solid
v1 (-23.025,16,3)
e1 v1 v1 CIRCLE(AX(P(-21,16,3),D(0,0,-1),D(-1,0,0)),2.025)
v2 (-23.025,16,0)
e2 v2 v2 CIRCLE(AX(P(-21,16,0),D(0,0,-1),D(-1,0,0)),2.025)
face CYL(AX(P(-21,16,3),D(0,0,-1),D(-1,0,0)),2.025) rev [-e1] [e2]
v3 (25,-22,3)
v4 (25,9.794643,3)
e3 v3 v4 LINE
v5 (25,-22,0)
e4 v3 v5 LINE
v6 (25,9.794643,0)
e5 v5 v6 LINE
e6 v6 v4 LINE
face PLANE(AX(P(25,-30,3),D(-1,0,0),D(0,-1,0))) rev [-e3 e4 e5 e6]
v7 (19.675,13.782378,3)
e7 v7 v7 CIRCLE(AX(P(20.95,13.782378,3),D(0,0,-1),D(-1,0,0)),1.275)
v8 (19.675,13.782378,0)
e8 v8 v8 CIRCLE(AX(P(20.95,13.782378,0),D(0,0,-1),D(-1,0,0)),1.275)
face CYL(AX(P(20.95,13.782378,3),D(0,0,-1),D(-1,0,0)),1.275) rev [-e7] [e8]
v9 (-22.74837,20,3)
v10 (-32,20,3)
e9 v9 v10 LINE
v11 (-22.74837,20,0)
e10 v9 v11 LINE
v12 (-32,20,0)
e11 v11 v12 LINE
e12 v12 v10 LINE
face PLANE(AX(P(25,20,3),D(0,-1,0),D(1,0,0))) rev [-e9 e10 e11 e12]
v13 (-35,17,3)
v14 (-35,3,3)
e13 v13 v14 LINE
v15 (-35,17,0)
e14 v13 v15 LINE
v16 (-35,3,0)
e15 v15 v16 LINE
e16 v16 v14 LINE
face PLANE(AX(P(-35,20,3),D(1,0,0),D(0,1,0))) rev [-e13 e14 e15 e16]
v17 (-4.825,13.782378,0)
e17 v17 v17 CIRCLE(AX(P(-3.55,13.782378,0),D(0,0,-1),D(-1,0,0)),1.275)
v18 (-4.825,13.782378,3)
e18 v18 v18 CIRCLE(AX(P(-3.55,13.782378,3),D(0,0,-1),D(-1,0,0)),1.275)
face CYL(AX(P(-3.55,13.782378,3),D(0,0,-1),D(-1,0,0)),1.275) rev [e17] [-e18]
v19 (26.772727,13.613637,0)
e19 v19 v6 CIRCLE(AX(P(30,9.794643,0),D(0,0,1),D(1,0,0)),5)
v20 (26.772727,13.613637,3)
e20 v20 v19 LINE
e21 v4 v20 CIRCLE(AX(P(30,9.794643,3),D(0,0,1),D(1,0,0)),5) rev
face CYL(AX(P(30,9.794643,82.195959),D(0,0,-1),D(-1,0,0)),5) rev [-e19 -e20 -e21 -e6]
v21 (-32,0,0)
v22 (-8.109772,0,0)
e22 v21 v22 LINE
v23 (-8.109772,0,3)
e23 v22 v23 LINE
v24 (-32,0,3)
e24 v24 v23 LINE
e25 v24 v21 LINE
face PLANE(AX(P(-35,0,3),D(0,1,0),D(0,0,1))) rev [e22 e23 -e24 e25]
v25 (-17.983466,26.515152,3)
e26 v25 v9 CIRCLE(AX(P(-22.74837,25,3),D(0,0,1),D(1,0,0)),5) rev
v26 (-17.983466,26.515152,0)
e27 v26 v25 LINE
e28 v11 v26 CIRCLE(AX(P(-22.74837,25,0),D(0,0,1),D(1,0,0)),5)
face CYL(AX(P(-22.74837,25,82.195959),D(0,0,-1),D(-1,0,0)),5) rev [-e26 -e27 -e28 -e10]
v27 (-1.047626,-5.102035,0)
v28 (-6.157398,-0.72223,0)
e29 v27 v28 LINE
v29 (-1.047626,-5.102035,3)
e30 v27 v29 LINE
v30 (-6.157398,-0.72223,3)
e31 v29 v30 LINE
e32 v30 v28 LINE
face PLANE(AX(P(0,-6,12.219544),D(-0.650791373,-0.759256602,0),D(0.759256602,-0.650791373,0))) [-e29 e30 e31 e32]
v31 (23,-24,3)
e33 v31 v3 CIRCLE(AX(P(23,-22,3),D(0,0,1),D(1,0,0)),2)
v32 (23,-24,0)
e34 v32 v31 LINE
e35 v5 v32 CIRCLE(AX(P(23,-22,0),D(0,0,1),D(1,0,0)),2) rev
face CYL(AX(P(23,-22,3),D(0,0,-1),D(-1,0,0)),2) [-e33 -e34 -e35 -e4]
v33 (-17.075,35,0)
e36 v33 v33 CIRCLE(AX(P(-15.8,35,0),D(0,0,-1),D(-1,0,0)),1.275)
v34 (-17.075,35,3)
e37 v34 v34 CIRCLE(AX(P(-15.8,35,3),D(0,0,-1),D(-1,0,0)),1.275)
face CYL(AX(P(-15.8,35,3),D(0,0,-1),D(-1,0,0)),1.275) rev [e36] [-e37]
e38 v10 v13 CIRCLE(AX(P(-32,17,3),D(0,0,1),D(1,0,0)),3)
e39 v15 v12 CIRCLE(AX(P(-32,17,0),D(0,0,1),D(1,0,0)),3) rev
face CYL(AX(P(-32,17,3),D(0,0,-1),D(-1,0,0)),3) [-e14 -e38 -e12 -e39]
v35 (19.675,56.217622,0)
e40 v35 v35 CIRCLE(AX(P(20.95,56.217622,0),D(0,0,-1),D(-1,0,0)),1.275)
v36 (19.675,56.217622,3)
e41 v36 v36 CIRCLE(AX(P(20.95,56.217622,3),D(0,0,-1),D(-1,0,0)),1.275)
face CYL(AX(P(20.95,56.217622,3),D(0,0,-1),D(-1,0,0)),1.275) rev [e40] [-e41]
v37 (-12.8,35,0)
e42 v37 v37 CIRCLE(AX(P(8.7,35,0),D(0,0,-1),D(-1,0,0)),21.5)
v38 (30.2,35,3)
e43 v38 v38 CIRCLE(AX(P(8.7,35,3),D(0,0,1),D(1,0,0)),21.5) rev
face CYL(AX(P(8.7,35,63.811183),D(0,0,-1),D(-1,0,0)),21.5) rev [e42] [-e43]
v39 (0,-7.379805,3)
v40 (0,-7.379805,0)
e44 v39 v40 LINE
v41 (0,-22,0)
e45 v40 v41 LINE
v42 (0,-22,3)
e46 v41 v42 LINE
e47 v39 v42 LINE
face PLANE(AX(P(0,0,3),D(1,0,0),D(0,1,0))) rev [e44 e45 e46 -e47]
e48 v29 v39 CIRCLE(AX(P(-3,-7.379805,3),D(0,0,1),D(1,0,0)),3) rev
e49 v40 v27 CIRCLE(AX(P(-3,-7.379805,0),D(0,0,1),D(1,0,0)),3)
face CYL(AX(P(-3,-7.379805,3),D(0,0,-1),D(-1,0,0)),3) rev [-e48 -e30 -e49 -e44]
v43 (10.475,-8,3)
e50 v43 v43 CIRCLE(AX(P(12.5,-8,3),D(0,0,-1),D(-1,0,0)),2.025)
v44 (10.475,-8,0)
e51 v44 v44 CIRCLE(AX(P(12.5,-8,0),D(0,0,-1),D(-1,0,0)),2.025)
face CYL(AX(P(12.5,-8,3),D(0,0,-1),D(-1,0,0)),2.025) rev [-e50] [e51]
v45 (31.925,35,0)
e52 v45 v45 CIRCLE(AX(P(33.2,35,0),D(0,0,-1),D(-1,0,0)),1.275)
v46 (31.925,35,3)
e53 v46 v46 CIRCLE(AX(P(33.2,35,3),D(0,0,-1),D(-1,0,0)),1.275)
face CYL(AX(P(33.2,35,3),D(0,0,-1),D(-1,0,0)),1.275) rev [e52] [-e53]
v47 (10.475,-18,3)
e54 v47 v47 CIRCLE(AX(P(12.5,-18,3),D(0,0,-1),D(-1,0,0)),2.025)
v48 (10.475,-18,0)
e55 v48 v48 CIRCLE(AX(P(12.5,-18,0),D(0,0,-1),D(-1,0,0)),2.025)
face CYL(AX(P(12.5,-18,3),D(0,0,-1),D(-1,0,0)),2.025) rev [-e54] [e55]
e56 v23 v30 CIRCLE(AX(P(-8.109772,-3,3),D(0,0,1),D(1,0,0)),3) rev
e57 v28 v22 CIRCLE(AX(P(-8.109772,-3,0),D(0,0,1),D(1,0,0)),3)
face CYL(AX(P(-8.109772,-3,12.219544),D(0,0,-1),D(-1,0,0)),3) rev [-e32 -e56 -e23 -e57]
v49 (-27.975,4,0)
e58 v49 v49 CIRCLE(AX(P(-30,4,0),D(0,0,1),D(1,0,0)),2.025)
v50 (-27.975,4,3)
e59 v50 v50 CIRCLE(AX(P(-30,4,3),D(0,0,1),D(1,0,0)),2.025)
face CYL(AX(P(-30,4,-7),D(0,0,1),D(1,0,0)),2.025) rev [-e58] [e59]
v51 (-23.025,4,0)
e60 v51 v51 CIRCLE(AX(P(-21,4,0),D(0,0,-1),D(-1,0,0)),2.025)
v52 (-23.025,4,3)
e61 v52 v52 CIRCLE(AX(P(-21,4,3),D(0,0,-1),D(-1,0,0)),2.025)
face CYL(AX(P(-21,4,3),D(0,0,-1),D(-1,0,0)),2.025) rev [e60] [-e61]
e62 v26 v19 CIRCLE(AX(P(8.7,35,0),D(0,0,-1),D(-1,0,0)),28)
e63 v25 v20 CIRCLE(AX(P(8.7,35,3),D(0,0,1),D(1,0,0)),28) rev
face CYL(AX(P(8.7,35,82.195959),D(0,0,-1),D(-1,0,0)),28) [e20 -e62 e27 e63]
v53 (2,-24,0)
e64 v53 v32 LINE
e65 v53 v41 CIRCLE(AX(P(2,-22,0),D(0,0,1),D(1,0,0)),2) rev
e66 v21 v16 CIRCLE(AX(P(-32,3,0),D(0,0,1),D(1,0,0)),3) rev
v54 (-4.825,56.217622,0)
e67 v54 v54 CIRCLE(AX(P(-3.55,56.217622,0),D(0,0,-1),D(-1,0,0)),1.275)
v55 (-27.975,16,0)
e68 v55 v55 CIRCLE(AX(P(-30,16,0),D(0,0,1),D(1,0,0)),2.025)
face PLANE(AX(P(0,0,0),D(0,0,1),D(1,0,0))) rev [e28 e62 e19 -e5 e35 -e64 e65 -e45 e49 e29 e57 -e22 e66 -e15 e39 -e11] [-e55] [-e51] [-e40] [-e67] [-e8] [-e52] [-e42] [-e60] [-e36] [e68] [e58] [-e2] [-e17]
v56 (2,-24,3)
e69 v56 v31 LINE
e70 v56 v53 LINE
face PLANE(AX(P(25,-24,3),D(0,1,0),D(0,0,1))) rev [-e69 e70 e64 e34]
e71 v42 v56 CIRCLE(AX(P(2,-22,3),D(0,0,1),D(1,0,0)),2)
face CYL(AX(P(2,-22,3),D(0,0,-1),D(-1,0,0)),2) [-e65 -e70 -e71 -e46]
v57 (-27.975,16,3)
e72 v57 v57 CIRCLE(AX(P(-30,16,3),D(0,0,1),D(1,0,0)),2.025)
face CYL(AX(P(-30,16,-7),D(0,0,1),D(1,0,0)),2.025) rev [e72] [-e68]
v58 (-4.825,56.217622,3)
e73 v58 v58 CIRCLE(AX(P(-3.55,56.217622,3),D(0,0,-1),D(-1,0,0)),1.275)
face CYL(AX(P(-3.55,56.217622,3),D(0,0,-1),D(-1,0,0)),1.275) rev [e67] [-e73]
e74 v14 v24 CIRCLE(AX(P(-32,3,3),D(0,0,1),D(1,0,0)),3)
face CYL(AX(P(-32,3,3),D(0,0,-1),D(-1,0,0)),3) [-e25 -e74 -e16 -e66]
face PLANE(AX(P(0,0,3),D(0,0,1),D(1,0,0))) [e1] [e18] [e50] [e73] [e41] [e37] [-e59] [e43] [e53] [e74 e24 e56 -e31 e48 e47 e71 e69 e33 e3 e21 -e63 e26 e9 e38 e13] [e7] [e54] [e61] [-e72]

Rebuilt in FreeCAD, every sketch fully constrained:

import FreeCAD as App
import Part
import Sketcher
from FreeCAD import Vector
Q = App.Units.Quantity


def edges_at(feature, points):
    """Names of the edges that pass closest to the given points."""
    edges = feature.Shape.Edges
    near = lambda p: min(range(len(edges)), key=lambda i: edges[i].distToShape(Part.Vertex(*p))[0])
    return sorted({f"Edge{near(p) + 1}" for p in points})


def add_polygon(sketch, points):
    """Adds a closed chain of lines whose ends are joined by coincident constraints."""
    first, n = sketch.GeometryCount, len(points)
    for a, b in zip(points, points[1:] + points[:1]):
        sketch.addGeometry(Part.LineSegment(App.Vector(*a, 0), App.Vector(*b, 0)), False)
    for i in range(n):
        sketch.addConstraint(Sketcher.Constraint("Coincident", first + i, 2, first + (i + 1) % n, 1))

doc = App.newDocument("Part")
body = doc.addObject("PartDesign::Body", "Body")

sketch1 = body.newObject("Sketcher::SketchObject", "Sketch")
sketch1.AttachmentSupport = (doc.getObject("XY_Plane"), [""])
sketch1.MapMode = "FlatFace"
add_polygon(sketch1, [(-35, 0), (0, 0), (0, -30), (25, -30), (25, 20), (-35, 20)])
sketch1.addConstraint([
    Sketcher.Constraint("Horizontal", 0),
    Sketcher.Constraint("Vertical", 1),
    Sketcher.Constraint("Horizontal", 2),
    Sketcher.Constraint("Vertical", 3),
    Sketcher.Constraint("Horizontal", 4),
    Sketcher.Constraint("Vertical", 5),
    Sketcher.Constraint("Coincident", 0, 2, -1, 1),
    Sketcher.Constraint("DistanceX", 0, 1, 0, 2, Q("35 mm")),
    Sketcher.Constraint("DistanceX", 2, 1, 2, 2, Q("25 mm")),
    Sketcher.Constraint("DistanceY", 1, 2, 1, 1, Q("30 mm")),
    Sketcher.Constraint("DistanceY", 3, 1, 3, 2, Q("50 mm")),
])
pad1 = body.newObject("PartDesign::Pad", "Pad")
pad1.Profile = sketch1
pad1.Length = 3

sketch2 = body.newObject("Sketcher::SketchObject", "Sketch001")
sketch2.AttachmentSupport = (doc.getObject("XY_Plane"), [""])
sketch2.MapMode = "FlatFace"
sketch2.addGeometry(Part.Circle(Vector(8.7, 35, 0), Vector(0, 0, 1), 28), False)
sketch2.addConstraint([
    Sketcher.Constraint("Diameter", 0, Q("56 mm")),
    Sketcher.Constraint("DistanceY", -1, 1, 0, 3, Q("35 mm")),
    Sketcher.Constraint("DistanceX", -1, 1, 0, 3, Q("8.7 mm")),
])
pad2 = body.newObject("PartDesign::Pad", "Pad001")
pad2.Profile = sketch2
pad2.Length = 3

sketch3 = body.newObject("Sketcher::SketchObject", "Sketch002")
sketch3.AttachmentSupport = (doc.getObject("XY_Plane"), [""])
sketch3.MapMode = "FlatFace"
sketch3.addGeometry(Part.Circle(Vector(8.7, 35, 0), Vector(0, 0, 1), 21.5), False)
sketch3.addConstraint([
    Sketcher.Constraint("Diameter", 0, Q("43 mm")),
    Sketcher.Constraint("DistanceY", -1, 1, 0, 3, Q("35 mm")),
    Sketcher.Constraint("DistanceX", -1, 1, 0, 3, Q("8.7 mm")),
])
pocket1 = body.newObject("PartDesign::Pocket", "Pocket")
pocket1.Profile = sketch3
pocket1.Length = 3
pocket1.Reversed = True
doc.recompute()

fillet = body.newObject("PartDesign::Fillet", "Fillet")
fillet.Base = (pocket1, edges_at(pocket1, [(25, 12.234, 1.5), (-14.943, 20, 1.5)]))
fillet.Radius = 5

sketch4 = body.newObject("Sketcher::SketchObject", "Sketch003")
sketch4.AttachmentSupport = (doc.getObject("XY_Plane"), [""])
sketch4.MapMode = "FlatFace"
sketch4.addGeometry([
    Part.Circle(Vector(33.2, 35, 0), Vector(0, 0, 1), 1.275),
    Part.Circle(Vector(20.95, 56.217622, 0), Vector(0, 0, 1), 1.275),
    Part.Circle(Vector(-3.55, 56.217622, 0), Vector(0, 0, 1), 1.275),
    Part.Circle(Vector(-15.8, 35, 0), Vector(0, 0, 1), 1.275),
    Part.Circle(Vector(-3.55, 13.782378, 0), Vector(0, 0, 1), 1.275),
    Part.Circle(Vector(20.95, 13.782378, 0), Vector(0, 0, 1), 1.275),
], False)
sketch4.addConstraint([
    Sketcher.Constraint("Equal", 0, 1),
    Sketcher.Constraint("Equal", 1, 2),
    Sketcher.Constraint("Equal", 2, 3),
    Sketcher.Constraint("Equal", 3, 4),
    Sketcher.Constraint("Equal", 4, 5),
    Sketcher.Constraint("Horizontal", 1, 3, 2, 3),
    Sketcher.Constraint("Horizontal", 0, 3, 3, 3),
    Sketcher.Constraint("Horizontal", 4, 3, 5, 3),
    Sketcher.Constraint("Vertical", 2, 3, 4, 3),
    Sketcher.Constraint("Vertical", 1, 3, 5, 3),
    Sketcher.Constraint("Diameter", 0, Q("2.55 mm")),
    Sketcher.Constraint("DistanceY", -1, 1, 0, 3, Q("35 mm")),
    Sketcher.Constraint("DistanceX", 3, 3, 0, 3, Q("49 mm")),
    Sketcher.Constraint("DistanceX", -1, 1, 0, 3, Q("33.2 mm")),
    Sketcher.Constraint("DistanceX", 2, 3, 1, 3, Q("24.5 mm")),
    Sketcher.Constraint("DistanceX", -1, 1, 1, 3, Q("20.95 mm")),
    Sketcher.Constraint("DistanceY", -1, 1, 1, 3, Q("56.217622 mm")),
    Sketcher.Constraint("DistanceY", -1, 1, 4, 3, Q("13.782378 mm")),
])
pocket2 = body.newObject("PartDesign::Pocket", "Pocket001")
pocket2.Profile = sketch4
pocket2.Type = "ThroughAll"
pocket2.Reversed = True

sketch5 = body.newObject("Sketcher::SketchObject", "Sketch004")
sketch5.AttachmentSupport = (doc.getObject("XY_Plane"), [""])
sketch5.MapMode = "FlatFace"
sketch5.addGeometry([
    Part.Circle(Vector(12.5, -8, 0), Vector(0, 0, 1), 2.025),
    Part.Circle(Vector(12.5, -18, 0), Vector(0, 0, 1), 2.025),
], False)
sketch5.addConstraint([
    Sketcher.Constraint("Equal", 0, 1),
    Sketcher.Constraint("Vertical", 0, 3, 1, 3),
    Sketcher.Constraint("Diameter", 0, Q("4.05 mm")),
    Sketcher.Constraint("DistanceY", 0, 3, -1, 1, Q("8 mm")),
    Sketcher.Constraint("DistanceY", 1, 3, -1, 1, Q("18 mm")),
    Sketcher.Constraint("DistanceX", -1, 1, 0, 3, Q("12.5 mm")),
])
pocket3 = body.newObject("PartDesign::Pocket", "Pocket002")
pocket3.Profile = sketch5
pocket3.Type = "ThroughAll"
pocket3.Reversed = True

sketch6 = body.newObject("Sketcher::SketchObject", "Sketch005")
sketch6.AttachmentSupport = (doc.getObject("XY_Plane"), [""])
sketch6.MapMode = "FlatFace"
add_polygon(sketch6, [(25, -24), (25, -30), (0, -30), (0, -24)])
sketch6.addConstraint([
    Sketcher.Constraint("Vertical", 0),
    Sketcher.Constraint("Horizontal", 1),
    Sketcher.Constraint("Vertical", 2),
    Sketcher.Constraint("Horizontal", 3),
    Sketcher.Constraint("PointOnObject", 1, 2, -2),
    Sketcher.Constraint("DistanceX", 1, 2, 1, 1, Q("25 mm")),
    Sketcher.Constraint("DistanceY", 0, 2, 0, 1, Q("6 mm")),
    Sketcher.Constraint("DistanceY", 0, 2, -1, 1, Q("30 mm")),
])
pocket4 = body.newObject("PartDesign::Pocket", "Pocket003")
pocket4.Profile = sketch6
pocket4.Type = "ThroughAll"
pocket4.Reversed = True
doc.recompute()

fillet2 = body.newObject("PartDesign::Fillet", "Fillet001")
fillet2.Base = (pocket4, edges_at(pocket4, [(25, -24, 1.5), (0, -24, 1.5)]))
fillet2.Radius = 2

sketch7 = body.newObject("Sketcher::SketchObject", "Sketch006")
sketch7.AttachmentSupport = (doc.getObject("XY_Plane"), [""])
sketch7.MapMode = "FlatFace"
sketch7.AttachmentOffset = App.Placement(Vector(0, 0, 3), App.Rotation())
sketch7.addGeometry([
    Part.Circle(Vector(-30, 16, 0), Vector(0, 0, 1), 2.025),
    Part.Circle(Vector(-30, 4, 0), Vector(0, 0, 1), 2.025),
], False)
sketch7.addConstraint([
    Sketcher.Constraint("Equal", 0, 1),
    Sketcher.Constraint("Vertical", 0, 3, 1, 3),
    Sketcher.Constraint("Diameter", 0, Q("4.05 mm")),
    Sketcher.Constraint("DistanceX", 0, 3, -1, 1, Q("30 mm")),
    Sketcher.Constraint("DistanceY", -1, 1, 0, 3, Q("16 mm")),
    Sketcher.Constraint("DistanceY", -1, 1, 1, 3, Q("4 mm")),
])
pocket5 = body.newObject("PartDesign::Pocket", "Pocket004")
pocket5.Profile = sketch7
pocket5.Length = 10

sketch8 = body.newObject("Sketcher::SketchObject", "Sketch007")
sketch8.AttachmentSupport = (doc.getObject("XY_Plane"), [""])
sketch8.MapMode = "FlatFace"
sketch8.addGeometry([
    Part.Circle(Vector(-21, 4, 0), Vector(0, 0, 1), 2.025),
    Part.Circle(Vector(-21, 16, 0), Vector(0, 0, 1), 2.025),
], False)
sketch8.addConstraint([
    Sketcher.Constraint("Equal", 0, 1),
    Sketcher.Constraint("Vertical", 0, 3, 1, 3),
    Sketcher.Constraint("Diameter", 0, Q("4.05 mm")),
    Sketcher.Constraint("DistanceX", 0, 3, -1, 1, Q("21 mm")),
    Sketcher.Constraint("DistanceY", -1, 1, 0, 3, Q("4 mm")),
    Sketcher.Constraint("DistanceY", -1, 1, 1, 3, Q("16 mm")),
])
pocket6 = body.newObject("PartDesign::Pocket", "Pocket005")
pocket6.Profile = sketch8
pocket6.Type = "ThroughAll"
pocket6.Midplane = True

sketch9 = body.newObject("Sketcher::SketchObject", "Sketch008")
sketch9.AttachmentSupport = (doc.getObject("XY_Plane"), [""])
sketch9.MapMode = "FlatFace"
add_polygon(sketch9, [(0, -6), (-7, 0), (0, 0)])
sketch9.addConstraint([
    Sketcher.Constraint("Horizontal", 1),
    Sketcher.Constraint("Vertical", 2),
    Sketcher.Constraint("Coincident", 1, 2, -1, 1),
    Sketcher.Constraint("DistanceX", 1, 1, 1, 2, Q("7 mm")),
    Sketcher.Constraint("DistanceY", 2, 2, 2, 1, Q("6 mm")),
])
pad3 = body.newObject("PartDesign::Pad", "Pad002")
pad3.Profile = sketch9
pad3.Length = 3
doc.recompute()

fillet3 = body.newObject("PartDesign::Fillet", "Fillet002")
fillet3.Base = (pad3, edges_at(pad3, [
    (-35, 20, 1.5),
    (-35, 0, 1.5),
    (-7, 0, 1.5),
    (0, -6, 1.5),
]))
fillet3.Radius = 3

doc.recompute()
